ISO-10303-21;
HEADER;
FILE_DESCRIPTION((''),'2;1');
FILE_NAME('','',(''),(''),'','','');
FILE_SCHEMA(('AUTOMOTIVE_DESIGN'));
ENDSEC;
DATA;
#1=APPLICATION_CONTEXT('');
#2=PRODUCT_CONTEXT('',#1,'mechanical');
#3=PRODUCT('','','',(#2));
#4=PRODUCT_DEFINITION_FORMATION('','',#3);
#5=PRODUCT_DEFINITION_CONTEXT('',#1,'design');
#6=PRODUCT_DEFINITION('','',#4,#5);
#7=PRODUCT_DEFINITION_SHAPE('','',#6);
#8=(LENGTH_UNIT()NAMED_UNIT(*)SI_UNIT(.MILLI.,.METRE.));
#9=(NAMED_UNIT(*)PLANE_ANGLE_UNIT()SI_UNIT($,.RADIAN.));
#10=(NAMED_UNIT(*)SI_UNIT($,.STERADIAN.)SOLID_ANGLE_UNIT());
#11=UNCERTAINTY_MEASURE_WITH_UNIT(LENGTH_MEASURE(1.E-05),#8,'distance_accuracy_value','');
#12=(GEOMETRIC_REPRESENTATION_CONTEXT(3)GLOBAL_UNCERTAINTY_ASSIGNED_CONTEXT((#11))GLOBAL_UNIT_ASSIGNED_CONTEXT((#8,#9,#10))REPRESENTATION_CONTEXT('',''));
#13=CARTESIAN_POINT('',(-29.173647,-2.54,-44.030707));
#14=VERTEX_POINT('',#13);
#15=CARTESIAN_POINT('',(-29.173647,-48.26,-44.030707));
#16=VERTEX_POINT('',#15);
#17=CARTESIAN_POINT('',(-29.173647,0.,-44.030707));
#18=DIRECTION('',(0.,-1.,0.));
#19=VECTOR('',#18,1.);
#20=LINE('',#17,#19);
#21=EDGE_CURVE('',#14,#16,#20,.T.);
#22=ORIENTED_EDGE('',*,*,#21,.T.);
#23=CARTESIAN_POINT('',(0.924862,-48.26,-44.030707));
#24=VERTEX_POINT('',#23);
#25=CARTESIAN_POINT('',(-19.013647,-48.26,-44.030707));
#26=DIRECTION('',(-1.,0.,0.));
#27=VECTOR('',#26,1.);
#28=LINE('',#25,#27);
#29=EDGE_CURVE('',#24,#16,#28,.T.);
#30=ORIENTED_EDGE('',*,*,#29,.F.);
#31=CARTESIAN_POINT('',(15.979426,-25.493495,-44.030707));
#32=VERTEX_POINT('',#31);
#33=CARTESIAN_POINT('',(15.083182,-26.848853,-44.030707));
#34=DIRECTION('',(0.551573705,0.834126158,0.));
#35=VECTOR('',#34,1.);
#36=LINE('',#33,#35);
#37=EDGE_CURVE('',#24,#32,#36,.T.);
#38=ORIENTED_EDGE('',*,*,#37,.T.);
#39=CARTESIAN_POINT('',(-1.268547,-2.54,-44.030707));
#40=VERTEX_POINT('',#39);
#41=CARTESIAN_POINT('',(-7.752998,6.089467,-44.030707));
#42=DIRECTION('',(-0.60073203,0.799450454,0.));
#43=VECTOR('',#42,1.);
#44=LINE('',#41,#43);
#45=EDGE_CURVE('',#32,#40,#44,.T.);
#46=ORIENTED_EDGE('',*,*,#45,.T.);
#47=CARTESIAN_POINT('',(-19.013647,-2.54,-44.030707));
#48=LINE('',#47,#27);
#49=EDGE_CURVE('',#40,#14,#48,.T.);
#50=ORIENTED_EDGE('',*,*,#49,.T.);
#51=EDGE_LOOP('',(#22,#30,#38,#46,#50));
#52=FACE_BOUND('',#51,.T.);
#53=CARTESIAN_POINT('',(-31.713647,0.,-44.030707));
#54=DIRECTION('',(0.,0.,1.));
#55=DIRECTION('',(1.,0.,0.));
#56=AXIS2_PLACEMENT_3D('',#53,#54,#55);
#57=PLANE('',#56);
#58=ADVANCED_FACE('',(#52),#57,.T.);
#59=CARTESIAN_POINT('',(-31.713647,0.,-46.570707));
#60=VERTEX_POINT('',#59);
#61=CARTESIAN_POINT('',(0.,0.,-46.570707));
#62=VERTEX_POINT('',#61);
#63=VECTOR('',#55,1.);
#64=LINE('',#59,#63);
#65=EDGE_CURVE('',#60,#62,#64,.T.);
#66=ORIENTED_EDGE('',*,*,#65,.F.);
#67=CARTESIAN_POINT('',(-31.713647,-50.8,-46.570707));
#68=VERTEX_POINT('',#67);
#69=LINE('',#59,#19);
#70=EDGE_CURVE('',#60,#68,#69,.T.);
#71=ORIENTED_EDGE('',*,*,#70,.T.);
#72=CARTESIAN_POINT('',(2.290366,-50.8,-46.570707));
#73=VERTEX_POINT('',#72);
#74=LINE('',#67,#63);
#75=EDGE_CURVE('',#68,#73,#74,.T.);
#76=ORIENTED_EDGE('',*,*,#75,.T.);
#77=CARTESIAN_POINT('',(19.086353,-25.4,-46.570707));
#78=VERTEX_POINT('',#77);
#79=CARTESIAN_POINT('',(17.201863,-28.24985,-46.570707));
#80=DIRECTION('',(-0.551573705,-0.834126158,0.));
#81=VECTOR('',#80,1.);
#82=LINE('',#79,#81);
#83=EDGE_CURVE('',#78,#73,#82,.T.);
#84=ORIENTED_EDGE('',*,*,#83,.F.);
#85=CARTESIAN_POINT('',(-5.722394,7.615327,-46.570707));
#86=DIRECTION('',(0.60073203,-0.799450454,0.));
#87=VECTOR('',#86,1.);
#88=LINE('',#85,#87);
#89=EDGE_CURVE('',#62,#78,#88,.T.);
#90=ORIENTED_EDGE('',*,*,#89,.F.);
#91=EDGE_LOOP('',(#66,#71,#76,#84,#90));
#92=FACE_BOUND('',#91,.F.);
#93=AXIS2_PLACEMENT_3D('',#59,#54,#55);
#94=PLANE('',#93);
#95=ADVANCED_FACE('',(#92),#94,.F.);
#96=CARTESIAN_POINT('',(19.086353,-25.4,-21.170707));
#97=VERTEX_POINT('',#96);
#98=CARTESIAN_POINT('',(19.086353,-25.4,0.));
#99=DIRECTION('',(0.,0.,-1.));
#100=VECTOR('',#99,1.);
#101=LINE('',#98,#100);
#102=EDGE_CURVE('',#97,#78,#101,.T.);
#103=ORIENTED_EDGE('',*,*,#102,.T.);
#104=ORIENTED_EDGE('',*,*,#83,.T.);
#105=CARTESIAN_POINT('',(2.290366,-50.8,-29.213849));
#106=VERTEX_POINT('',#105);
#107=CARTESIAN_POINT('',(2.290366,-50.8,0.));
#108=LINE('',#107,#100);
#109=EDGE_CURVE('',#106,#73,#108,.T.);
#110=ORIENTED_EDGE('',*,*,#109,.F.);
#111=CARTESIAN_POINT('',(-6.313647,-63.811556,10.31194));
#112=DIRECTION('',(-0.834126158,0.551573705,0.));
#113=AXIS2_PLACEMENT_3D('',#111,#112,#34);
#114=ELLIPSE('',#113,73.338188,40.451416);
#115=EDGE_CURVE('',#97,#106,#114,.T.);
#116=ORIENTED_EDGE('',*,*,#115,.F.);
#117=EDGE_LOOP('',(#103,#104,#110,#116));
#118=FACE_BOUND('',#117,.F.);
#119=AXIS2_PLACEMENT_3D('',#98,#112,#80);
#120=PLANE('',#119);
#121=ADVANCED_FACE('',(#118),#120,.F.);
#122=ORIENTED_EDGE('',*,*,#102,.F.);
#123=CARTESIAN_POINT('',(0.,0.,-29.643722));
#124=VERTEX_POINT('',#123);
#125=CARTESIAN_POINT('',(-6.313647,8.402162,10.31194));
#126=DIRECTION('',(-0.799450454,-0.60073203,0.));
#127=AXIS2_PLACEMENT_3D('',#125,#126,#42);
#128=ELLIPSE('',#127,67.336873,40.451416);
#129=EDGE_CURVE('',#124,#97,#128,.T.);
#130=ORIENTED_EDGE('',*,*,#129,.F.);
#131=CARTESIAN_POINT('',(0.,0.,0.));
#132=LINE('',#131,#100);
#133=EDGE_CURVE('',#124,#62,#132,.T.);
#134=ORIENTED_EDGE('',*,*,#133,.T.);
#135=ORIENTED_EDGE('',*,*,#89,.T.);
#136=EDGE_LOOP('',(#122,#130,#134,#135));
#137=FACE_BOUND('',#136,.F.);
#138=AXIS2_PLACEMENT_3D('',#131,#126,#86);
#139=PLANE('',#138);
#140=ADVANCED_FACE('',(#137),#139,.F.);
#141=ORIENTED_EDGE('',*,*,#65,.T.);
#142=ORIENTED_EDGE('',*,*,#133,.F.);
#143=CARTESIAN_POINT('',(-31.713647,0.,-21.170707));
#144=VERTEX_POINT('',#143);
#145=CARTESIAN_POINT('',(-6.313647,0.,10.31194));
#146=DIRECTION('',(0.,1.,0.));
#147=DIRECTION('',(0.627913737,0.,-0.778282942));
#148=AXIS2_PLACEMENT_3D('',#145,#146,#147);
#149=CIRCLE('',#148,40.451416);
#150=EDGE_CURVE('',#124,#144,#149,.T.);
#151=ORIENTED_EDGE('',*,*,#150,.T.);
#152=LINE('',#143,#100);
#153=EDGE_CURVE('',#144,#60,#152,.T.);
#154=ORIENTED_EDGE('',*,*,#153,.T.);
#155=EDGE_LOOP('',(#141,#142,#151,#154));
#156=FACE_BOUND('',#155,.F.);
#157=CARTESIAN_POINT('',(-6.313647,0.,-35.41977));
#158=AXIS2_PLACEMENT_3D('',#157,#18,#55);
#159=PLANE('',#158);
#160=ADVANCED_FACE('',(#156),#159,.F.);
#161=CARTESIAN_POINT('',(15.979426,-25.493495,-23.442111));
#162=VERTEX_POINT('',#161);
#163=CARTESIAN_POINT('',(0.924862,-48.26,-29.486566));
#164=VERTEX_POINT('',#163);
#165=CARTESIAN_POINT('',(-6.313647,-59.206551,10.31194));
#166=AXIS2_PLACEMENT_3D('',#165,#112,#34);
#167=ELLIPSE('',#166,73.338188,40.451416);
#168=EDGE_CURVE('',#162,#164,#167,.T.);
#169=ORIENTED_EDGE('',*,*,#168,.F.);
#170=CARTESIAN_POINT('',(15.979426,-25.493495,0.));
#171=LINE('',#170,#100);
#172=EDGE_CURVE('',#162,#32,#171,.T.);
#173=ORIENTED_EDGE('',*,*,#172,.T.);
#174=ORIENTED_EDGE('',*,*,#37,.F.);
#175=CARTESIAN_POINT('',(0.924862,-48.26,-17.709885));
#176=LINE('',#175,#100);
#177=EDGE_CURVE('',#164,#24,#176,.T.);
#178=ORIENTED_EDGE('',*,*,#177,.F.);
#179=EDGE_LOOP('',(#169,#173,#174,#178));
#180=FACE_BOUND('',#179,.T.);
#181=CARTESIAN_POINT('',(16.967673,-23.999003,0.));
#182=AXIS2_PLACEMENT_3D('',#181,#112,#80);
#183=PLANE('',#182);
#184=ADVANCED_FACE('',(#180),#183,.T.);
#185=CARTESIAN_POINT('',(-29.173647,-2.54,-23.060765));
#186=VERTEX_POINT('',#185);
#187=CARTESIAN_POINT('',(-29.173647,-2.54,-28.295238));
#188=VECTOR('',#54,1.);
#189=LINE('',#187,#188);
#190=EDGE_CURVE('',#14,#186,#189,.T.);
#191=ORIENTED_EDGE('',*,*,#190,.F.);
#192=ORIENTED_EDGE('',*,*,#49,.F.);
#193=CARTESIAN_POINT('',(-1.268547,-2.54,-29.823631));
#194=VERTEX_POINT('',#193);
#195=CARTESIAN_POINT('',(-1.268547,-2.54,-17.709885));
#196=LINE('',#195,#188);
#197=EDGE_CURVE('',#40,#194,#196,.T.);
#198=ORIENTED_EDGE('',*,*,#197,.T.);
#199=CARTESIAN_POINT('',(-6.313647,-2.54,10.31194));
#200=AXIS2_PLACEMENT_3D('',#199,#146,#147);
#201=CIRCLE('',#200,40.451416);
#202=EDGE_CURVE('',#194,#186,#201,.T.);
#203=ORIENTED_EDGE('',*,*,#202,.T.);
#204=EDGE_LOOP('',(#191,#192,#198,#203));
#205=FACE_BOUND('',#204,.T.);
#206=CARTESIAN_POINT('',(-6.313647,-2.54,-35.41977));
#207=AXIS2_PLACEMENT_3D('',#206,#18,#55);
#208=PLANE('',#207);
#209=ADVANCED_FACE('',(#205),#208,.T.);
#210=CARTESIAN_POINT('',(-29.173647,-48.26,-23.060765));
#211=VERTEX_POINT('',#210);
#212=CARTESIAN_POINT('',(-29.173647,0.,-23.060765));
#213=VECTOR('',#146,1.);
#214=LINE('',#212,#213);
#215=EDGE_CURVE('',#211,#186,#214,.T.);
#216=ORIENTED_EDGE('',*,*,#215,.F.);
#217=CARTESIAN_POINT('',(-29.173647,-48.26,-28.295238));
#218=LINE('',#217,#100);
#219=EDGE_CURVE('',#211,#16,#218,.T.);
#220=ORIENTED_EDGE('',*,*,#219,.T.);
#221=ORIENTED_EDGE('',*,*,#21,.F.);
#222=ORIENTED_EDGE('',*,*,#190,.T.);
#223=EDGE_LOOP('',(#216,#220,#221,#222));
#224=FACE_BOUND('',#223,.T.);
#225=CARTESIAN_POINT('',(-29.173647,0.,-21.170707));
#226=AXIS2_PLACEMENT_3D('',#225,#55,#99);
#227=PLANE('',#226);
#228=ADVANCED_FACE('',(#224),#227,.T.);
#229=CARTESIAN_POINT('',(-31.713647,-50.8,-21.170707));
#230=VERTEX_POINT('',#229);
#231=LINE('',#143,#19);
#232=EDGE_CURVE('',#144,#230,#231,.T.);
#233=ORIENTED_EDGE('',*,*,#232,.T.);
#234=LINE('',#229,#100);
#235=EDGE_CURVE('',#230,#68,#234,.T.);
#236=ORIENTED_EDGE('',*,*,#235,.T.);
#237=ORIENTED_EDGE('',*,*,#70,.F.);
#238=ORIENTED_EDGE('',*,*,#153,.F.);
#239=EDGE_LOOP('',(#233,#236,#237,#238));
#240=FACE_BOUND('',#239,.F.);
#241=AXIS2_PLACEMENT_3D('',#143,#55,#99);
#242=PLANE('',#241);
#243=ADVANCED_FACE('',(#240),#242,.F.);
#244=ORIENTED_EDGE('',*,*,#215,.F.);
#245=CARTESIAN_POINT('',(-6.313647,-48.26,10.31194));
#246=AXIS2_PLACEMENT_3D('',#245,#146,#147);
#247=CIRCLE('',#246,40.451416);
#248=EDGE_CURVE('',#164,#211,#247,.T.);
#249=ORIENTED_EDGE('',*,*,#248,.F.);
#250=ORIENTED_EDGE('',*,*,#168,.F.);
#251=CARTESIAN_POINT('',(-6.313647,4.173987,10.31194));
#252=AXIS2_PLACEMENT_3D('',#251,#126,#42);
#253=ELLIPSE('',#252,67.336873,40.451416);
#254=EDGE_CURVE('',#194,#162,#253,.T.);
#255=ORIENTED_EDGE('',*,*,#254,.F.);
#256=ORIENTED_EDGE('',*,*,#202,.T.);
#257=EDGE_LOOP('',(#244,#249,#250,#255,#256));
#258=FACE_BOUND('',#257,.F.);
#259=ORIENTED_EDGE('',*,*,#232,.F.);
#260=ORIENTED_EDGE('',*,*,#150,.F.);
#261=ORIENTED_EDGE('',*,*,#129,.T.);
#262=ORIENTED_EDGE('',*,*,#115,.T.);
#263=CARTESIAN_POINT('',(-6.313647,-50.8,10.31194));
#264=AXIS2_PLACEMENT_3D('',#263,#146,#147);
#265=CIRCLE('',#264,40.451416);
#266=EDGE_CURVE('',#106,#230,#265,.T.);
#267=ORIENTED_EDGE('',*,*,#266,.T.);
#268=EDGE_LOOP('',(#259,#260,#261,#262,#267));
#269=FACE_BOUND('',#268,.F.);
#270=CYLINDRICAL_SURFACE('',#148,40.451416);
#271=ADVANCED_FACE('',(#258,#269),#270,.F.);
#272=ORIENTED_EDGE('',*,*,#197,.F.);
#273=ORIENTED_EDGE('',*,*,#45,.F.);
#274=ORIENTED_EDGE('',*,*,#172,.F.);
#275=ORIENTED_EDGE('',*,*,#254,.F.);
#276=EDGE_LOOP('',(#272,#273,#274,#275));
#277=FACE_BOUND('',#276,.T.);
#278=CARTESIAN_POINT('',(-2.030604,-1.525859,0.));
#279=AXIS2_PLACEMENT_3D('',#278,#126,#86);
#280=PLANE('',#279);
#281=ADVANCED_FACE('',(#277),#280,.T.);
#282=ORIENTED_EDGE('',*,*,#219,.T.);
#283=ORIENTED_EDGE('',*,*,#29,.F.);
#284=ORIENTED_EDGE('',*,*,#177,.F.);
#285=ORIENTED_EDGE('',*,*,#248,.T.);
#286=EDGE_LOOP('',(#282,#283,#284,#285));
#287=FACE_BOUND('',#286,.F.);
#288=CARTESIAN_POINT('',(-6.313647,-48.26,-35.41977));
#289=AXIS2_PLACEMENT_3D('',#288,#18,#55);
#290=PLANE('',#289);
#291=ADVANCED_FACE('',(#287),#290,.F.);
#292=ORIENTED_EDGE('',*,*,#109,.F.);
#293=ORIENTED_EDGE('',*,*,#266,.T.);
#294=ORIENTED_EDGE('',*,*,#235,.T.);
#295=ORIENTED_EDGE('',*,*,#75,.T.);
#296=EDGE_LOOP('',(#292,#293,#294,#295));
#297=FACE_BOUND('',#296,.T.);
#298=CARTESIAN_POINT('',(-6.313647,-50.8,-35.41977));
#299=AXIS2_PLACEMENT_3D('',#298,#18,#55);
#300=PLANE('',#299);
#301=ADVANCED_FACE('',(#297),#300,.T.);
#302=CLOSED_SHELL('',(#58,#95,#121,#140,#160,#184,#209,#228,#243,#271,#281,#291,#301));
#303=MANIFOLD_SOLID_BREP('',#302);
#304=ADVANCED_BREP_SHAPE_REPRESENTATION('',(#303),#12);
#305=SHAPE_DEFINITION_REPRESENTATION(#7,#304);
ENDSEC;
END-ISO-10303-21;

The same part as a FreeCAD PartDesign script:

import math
import FreeCAD as App
import Part
import Sketcher
from FreeCAD import Vector
Q = App.Units.Quantity


def faces_at(feature, points):
    """Names of the faces that lie closest to the given points."""
    faces = feature.Shape.Faces
    near = lambda p: min(range(len(faces)), key=lambda i: faces[i].distToShape(Part.Vertex(*p))[0])
    return sorted({f"Face{near(p) + 1}" for p in points})


def add_polygon(sketch, points):
    """Adds a closed chain of lines whose ends are joined by coincident constraints."""
    first, n = sketch.GeometryCount, len(points)
    for a, b in zip(points, points[1:] + points[:1]):
        sketch.addGeometry(Part.LineSegment(App.Vector(*a, 0), App.Vector(*b, 0)), False)
    for i in range(n):
        sketch.addConstraint(Sketcher.Constraint("Coincident", first + i, 2, first + (i + 1) % n, 1))

doc = App.newDocument("Part")
body = doc.addObject("PartDesign::Body", "Body")

sketch1 = body.newObject("Sketcher::SketchObject", "Sketch")
sketch1.AttachmentSupport = (doc.getObject("XZ_Plane"), [""])
sketch1.MapMode = "FlatFace"
sketch1.addGeometry([
    Part.LineSegment(Vector(-32, -21, 0), Vector(-32, -47, 0)),
    Part.LineSegment(Vector(-32, -47, 0), Vector(19, -47, 0)),
    Part.LineSegment(Vector(19, -47, 0), Vector(19, -21, 0)),
    Part.ArcOfCircle(Part.Circle(Vector(-6, 10, 0), Vector(0, 0, 1), 40), math.radians(-129), math.radians(-51)),
], False)
sketch1.addConstraint([
    Sketcher.Constraint("Coincident", 0, 2, 1, 1),
    Sketcher.Constraint("Coincident", 1, 2, 2, 1),
    Sketcher.Constraint("Coincident", 2, 2, 3, 2),
    Sketcher.Constraint("Coincident", 3, 1, 0, 1),
    Sketcher.Constraint("Vertical", 0),
    Sketcher.Constraint("Horizontal", 1),
    Sketcher.Constraint("Vertical", 2),
    Sketcher.Constraint("Horizontal", 2, 2, 3, 1),
    Sketcher.Constraint("DistanceX", 1, 1, 1, 2, Q("2 in")),
    Sketcher.Constraint("DistanceY", 0, 2, 0, 1, Q("1 in")),
    Sketcher.Constraint("Radius", 3, Q("40.451416 mm")),
    Sketcher.Constraint("DistanceY", -1, 1, 3, 3, Q("10.31194 mm")),
    Sketcher.Constraint("DistanceX", 3, 3, -1, 1, Q("6.313647 mm")),
])
pad1 = body.newObject("PartDesign::Pad", "Pad")
pad1.Profile = sketch1
pad1.Length = Q("2 in")

sketch2 = body.newObject("Sketcher::SketchObject", "Sketch001")
sketch2.AttachmentSupport = (doc.getObject("XY_Plane"), [""])
sketch2.MapMode = "FlatFace"
add_polygon(sketch2, [(19, -51), (19, -25), (2, -51)])
add_polygon(sketch2, [(19, -25), (19, 0), (0, 0)])
sketch2.addConstraint([
    Sketcher.Constraint("Vertical", 0),
    Sketcher.Constraint("Horizontal", 2),
    Sketcher.Constraint("Vertical", 3),
    Sketcher.Constraint("Horizontal", 4),
    Sketcher.Constraint("Coincident", 4, 2, -1, 1),
    Sketcher.Constraint("Coincident", 5, 2, 0, 2),
    Sketcher.Constraint("Equal", 0, 3),
    Sketcher.Constraint("DistanceY", 0, 1, 0, 2, Q("1 in")),
    Sketcher.Constraint("Distance", 1, Q("30.451029 mm")),
    Sketcher.Constraint("DistanceX", 4, 2, 4, 1, Q("19.086353 mm")),
])
pocket1 = body.newObject("PartDesign::Pocket", "Pocket")
pocket1.Profile = sketch2
pocket1.Type = "ThroughAll"
doc.recompute()

thickness = body.newObject("PartDesign::Thickness", "Thickness")
thickness.Base = (pocket1, faces_at(pocket1, [(-6.314, -25.4, -30.139)]))
thickness.Value = Q("0.1 in")
thickness.Reversed = True
thickness.Join = "Arc"

doc.recompute()
